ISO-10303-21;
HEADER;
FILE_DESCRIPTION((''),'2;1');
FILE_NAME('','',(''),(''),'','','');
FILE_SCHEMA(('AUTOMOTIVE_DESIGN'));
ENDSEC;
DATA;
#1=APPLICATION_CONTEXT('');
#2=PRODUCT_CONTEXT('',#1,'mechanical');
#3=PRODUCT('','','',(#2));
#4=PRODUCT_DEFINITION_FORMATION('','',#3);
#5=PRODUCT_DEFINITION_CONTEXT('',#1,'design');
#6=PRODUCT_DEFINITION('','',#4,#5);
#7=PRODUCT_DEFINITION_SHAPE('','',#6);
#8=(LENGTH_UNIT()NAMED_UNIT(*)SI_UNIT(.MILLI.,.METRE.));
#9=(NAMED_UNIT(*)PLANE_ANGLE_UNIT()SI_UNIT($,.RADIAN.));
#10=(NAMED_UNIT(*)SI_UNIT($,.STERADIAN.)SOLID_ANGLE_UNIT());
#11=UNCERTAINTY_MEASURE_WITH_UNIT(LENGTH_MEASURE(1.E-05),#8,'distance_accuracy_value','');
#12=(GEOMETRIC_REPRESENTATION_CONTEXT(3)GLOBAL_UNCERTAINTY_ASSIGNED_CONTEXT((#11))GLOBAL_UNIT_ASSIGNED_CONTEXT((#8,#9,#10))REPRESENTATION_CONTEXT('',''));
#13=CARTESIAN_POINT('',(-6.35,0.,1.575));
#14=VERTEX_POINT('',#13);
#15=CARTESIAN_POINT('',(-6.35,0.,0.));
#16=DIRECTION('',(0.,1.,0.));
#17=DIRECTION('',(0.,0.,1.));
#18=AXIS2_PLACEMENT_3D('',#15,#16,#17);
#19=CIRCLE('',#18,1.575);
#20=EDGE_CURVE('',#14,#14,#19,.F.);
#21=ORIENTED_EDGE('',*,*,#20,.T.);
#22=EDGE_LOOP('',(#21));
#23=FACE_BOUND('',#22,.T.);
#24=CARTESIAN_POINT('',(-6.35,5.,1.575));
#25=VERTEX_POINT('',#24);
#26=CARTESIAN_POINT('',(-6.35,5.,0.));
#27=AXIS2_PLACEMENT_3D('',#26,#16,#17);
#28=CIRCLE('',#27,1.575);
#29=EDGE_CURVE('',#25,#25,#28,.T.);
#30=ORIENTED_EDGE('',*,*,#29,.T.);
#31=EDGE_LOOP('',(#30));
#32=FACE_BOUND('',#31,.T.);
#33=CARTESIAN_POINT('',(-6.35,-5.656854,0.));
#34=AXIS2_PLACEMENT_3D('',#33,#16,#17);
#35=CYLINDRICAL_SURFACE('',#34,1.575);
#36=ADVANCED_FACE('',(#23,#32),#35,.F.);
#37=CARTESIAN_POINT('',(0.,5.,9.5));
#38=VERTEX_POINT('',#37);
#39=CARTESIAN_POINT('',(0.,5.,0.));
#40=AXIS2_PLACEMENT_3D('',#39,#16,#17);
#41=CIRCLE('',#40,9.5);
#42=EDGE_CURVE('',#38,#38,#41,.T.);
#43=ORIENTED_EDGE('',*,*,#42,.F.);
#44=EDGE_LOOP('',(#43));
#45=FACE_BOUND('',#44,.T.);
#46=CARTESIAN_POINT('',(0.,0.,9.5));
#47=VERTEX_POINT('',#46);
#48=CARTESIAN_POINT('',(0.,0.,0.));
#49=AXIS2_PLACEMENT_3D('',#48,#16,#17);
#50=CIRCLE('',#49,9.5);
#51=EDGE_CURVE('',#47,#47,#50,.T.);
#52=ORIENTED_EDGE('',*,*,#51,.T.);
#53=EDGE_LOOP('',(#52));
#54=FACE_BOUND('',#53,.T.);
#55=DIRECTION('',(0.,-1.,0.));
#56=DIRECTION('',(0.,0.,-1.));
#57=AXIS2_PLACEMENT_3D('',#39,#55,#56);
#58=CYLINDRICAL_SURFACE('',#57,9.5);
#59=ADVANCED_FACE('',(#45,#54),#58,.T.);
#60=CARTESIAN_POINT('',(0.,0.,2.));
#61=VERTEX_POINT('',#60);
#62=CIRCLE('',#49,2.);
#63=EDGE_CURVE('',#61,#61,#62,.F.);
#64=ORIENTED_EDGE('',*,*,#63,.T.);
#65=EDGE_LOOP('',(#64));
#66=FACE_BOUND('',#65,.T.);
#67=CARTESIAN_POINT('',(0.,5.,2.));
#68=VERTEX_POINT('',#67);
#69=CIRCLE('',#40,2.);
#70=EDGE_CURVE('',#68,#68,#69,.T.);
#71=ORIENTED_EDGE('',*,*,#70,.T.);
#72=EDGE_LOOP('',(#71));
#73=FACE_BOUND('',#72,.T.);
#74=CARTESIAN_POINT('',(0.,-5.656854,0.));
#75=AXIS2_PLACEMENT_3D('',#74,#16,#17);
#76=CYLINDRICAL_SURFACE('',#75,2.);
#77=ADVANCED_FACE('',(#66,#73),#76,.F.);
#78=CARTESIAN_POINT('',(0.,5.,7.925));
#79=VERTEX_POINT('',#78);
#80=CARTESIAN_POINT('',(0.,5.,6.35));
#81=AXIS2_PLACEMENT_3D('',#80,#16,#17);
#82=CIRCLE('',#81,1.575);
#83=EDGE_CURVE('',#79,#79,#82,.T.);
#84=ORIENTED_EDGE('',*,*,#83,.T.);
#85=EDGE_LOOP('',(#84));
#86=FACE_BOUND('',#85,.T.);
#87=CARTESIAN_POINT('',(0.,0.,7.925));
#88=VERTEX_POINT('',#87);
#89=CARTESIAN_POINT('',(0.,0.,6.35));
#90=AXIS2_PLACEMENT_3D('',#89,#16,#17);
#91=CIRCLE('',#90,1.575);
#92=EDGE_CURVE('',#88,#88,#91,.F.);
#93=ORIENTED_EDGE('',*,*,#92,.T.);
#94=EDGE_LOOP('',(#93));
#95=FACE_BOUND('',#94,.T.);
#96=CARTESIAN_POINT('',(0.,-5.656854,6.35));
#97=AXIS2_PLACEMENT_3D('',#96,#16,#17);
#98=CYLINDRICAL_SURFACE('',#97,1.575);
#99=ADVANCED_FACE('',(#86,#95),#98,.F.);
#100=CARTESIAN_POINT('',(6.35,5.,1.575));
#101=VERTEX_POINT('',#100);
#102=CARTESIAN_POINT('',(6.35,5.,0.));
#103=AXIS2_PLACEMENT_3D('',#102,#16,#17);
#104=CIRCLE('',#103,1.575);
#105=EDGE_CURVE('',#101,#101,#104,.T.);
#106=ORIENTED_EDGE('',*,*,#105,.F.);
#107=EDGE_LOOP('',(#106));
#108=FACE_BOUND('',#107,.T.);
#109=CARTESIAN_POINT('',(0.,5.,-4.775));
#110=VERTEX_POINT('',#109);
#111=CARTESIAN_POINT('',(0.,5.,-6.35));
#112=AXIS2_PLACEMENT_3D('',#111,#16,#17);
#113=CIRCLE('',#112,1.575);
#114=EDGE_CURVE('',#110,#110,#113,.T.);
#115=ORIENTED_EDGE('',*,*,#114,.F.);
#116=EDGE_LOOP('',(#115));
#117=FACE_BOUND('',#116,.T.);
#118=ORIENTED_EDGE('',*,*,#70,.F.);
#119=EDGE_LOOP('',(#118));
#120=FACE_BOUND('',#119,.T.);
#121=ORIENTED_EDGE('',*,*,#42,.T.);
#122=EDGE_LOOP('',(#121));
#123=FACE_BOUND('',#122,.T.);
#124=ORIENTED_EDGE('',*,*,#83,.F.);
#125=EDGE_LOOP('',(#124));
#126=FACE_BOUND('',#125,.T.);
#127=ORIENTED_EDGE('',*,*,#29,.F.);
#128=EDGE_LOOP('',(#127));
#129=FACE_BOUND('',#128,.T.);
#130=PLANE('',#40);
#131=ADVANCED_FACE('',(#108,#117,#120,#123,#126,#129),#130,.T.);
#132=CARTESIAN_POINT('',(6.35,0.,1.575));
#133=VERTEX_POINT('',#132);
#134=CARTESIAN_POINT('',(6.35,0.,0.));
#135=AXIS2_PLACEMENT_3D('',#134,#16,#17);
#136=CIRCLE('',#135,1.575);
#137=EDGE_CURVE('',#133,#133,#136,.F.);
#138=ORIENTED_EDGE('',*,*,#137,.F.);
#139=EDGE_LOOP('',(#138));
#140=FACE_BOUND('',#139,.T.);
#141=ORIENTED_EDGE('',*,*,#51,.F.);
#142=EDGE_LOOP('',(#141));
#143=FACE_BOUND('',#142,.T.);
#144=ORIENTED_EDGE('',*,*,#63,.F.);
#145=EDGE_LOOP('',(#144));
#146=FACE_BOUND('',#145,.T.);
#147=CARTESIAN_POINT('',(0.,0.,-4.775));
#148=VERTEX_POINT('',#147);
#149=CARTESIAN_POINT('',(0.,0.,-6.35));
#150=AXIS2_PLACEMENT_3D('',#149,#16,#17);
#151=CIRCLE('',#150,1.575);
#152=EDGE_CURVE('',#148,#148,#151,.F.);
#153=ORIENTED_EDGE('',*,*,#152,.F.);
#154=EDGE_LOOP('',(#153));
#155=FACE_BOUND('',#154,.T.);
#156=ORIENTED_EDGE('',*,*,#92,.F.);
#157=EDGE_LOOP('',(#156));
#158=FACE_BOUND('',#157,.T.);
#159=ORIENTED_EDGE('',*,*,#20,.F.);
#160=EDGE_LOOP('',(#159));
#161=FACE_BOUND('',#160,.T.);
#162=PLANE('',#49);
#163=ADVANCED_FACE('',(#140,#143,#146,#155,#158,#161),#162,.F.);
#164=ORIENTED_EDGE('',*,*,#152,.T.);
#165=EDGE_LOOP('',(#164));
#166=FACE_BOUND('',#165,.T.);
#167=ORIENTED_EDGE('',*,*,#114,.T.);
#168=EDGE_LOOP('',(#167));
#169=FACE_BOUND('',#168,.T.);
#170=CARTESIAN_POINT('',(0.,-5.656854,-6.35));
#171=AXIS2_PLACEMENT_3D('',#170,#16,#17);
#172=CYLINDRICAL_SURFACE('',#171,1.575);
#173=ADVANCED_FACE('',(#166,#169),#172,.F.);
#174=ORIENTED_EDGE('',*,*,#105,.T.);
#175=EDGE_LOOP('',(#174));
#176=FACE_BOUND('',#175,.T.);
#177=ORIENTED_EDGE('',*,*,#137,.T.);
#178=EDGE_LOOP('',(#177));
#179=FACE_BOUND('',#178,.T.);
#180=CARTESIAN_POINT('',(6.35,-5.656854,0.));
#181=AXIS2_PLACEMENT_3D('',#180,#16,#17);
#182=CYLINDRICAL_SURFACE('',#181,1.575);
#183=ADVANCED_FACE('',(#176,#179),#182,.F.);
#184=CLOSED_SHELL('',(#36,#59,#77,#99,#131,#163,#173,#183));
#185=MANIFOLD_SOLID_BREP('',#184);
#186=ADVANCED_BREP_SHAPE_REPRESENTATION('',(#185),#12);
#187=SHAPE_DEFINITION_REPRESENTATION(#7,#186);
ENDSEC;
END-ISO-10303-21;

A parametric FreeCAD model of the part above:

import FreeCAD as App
import Part
import Sketcher
Q = App.Units.Quantity

doc = App.newDocument("Part")
body = doc.addObject("PartDesign::Body", "Body")

# Sketch on XZ plane
sketch1 = doc.addObject("Sketcher::SketchObject", "Sketch")
body.addObject(sketch1)
sketch1.AttachmentSupport = (doc.XZ_Plane, [""])
sketch1.MapMode = "FlatFace"
sketch1.addGeometry(Part.Circle(App.Vector(0, 0, 0), App.Vector(0, 0, 1), 10), False)
sketch1.addConstraint([
    Sketcher.Constraint("Coincident", 0, 3, -1, 1),
    Sketcher.Constraint("Diameter", 0, Q("19 mm")),
])
pad1 = doc.addObject("PartDesign::Pad", "Pad")
body.addObject(pad1)
pad1.Profile = sketch1
pad1.Length = 5
pad1.Reversed = True

# Sketch on XZ plane
sketch2 = doc.addObject("Sketcher::SketchObject", "Sketch001")
body.addObject(sketch2)
sketch2.AttachmentSupport = (doc.XZ_Plane, [""])
sketch2.MapMode = "FlatFace"
sketch2.AttachmentOffset = App.Placement(App.Vector(0, 0, -5), App.Rotation())
sketch2.addGeometry([
    Part.Circle(App.Vector(0, -6.3, 0), App.Vector(0, 0, 1), 1.6),  # 0
    Part.Circle(App.Vector(6.3, 0, 0), App.Vector(0, 0, 1), 1.6),  # 1
    Part.Circle(App.Vector(0, 6.3, 0), App.Vector(0, 0, 1), 1.6),  # 2
    Part.Circle(App.Vector(-6.3, 0, 0), App.Vector(0, 0, 1), 1.6),  # 3
    Part.Circle(App.Vector(0, 0, 0), App.Vector(0, 0, 1), 2),  # 4
], False)
sketch2.addConstraint([
    Sketcher.Constraint("Coincident", 4, 3, -1, 1),
    Sketcher.Constraint("Equal", 0, 1),
    Sketcher.Constraint("Equal", 1, 2),
    Sketcher.Constraint("Equal", 2, 3),
    Sketcher.Constraint("Symmetric", 0, 3, 2, 3, -1, 1),
    Sketcher.Constraint("Symmetric", 1, 3, 3, 3, -1, 1),
    Sketcher.Constraint("PointOnObject", 0, 3, -2),
    Sketcher.Constraint("PointOnObject", 1, 3, -1),
    Sketcher.Constraint("Diameter", 4, Q("4 mm")),
    Sketcher.Constraint("Diameter", 0, Q("3.15 mm")),
    Sketcher.Constraint("DistanceY", 0, 3, 2, 3, Q("12.7 mm")),
    Sketcher.Constraint("DistanceX", 3, 3, 1, 3, Q("12.7 mm")),
])
pocket1 = doc.addObject("PartDesign::Pocket", "Pocket")
body.addObject(pocket1)
pocket1.Profile = sketch2
pocket1.Length = 5
pocket1.Reversed = True

doc.recompute()
